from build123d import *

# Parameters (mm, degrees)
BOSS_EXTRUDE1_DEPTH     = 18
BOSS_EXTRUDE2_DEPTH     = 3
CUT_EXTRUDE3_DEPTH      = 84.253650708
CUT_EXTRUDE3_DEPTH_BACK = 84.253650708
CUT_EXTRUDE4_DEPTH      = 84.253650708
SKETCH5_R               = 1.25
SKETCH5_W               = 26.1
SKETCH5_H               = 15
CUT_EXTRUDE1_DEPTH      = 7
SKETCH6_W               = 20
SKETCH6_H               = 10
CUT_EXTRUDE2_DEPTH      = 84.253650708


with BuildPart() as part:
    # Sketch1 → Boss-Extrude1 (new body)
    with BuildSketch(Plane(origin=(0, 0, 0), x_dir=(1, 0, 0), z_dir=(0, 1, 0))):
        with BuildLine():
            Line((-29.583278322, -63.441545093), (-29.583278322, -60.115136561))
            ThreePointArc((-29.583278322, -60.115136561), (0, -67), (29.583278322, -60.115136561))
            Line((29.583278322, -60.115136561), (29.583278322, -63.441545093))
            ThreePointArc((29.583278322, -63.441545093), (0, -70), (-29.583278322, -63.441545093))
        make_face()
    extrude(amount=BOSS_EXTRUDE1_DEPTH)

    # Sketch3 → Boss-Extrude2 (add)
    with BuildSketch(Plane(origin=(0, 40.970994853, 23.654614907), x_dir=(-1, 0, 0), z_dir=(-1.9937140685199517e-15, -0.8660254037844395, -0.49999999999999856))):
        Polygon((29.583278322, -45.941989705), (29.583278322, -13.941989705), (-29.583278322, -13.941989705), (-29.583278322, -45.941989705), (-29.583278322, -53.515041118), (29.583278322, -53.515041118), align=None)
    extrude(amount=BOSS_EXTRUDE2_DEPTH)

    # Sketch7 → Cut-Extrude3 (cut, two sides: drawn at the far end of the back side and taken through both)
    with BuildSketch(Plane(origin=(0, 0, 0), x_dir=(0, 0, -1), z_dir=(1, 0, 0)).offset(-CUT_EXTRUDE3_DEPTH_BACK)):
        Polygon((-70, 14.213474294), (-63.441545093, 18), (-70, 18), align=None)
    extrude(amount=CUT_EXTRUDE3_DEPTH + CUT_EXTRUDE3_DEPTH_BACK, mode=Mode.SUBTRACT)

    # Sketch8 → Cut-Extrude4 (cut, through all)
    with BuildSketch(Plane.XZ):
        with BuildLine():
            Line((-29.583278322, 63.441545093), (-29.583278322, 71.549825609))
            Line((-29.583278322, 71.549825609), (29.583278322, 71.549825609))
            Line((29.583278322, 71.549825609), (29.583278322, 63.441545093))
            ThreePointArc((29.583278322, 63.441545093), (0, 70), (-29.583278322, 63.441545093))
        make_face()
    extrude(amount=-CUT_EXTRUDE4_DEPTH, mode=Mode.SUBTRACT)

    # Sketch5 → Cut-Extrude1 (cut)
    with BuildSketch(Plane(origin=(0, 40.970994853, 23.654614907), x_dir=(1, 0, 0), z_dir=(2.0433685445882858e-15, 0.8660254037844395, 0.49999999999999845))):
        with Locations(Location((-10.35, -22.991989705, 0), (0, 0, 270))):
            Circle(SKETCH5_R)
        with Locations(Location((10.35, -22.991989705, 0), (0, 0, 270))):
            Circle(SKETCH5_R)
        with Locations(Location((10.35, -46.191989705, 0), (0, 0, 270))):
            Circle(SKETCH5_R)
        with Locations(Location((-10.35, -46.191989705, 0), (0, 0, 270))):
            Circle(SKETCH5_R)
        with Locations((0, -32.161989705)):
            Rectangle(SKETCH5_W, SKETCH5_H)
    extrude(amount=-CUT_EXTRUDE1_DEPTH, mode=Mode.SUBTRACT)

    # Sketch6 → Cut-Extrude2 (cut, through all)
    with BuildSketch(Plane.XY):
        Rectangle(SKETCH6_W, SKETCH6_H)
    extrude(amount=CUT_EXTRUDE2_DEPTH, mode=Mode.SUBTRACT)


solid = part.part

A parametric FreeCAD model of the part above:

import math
import FreeCAD as App
import Part
import Sketcher
Q = App.Units.Quantity


def add_polygon(sketch, points):
    """Adds a closed chain of lines whose ends are joined by coincident constraints."""
    first, n = sketch.GeometryCount, len(points)
    for a, b in zip(points, points[1:] + points[:1]):
        sketch.addGeometry(Part.LineSegment(App.Vector(*a, 0), App.Vector(*b, 0)), False)
    for i in range(n):
        sketch.addConstraint(Sketcher.Constraint("Coincident", first + i, 2, first + (i + 1) % n, 1))

doc = App.newDocument("Part")
body = doc.addObject("PartDesign::Body", "Body")

# Sketch on XZ plane
sketch1 = doc.addObject("Sketcher::SketchObject", "Sketch")
body.addObject(sketch1)
sketch1.AttachmentSupport = (doc.XZ_Plane, [""])
sketch1.MapMode = "FlatFace"
sketch1.addGeometry([
    Part.LineSegment(App.Vector(-29.583278, 60.115137, 0), App.Vector(-29.583278, 63.441545, 0)),
    Part.ArcOfCircle(Part.Circle(App.Vector(0, 0, 0), App.Vector(0, 0, 1), 70), math.radians(65), math.radians(115)),
    Part.LineSegment(App.Vector(29.583278, 63.441545, 0), App.Vector(29.583278, 60.115137, 0)),
    Part.ArcOfCircle(Part.Circle(App.Vector(0, 0, 0), App.Vector(0, 0, 1), 67), math.radians(63.797726), math.radians(116.202274)),
], False)
sketch1.addConstraint([
    Sketcher.Constraint("Coincident", 0, 2, 1, 2),
    Sketcher.Constraint("Coincident", 1, 1, 2, 1),
    Sketcher.Constraint("Coincident", 2, 2, 3, 1),
    Sketcher.Constraint("Coincident", 3, 2, 0, 1),
    Sketcher.Constraint("Vertical", 0),
    Sketcher.Constraint("Vertical", 2),
    Sketcher.Constraint("Coincident", 1, 3, -1, 1),
    Sketcher.Constraint("Coincident", 3, 3, -1, 1),
    Sketcher.Constraint("Horizontal", 0, 2, 1, 1),
    Sketcher.Constraint("Radius", 1, Q("70 mm")),
    Sketcher.Constraint("Radius", 3, Q("67 mm")),
    Sketcher.Constraint("DistanceY", 0, 1, 0, 2, Q("3.326409 mm")),
])
pad1 = doc.addObject("PartDesign::Pad", "Pad")
body.addObject(pad1)
pad1.Profile = sketch1
pad1.Length = 18
pad1.Reversed = True

# Sketch on an angled plane
sketch2 = doc.addObject("Sketcher::SketchObject", "Sketch001")
body.addObject(sketch2)
sketch2.Placement = App.Placement(App.Vector(0, 40.970995, 23.654615), App.Rotation(App.Vector(-1, 0, 0), App.Vector(0, 0.5, -0.866025404), App.Vector(0, -0.866025404, -0.5), "ZXY"))
add_polygon(sketch2, [(29.583278, -13.94199), (-29.583278, -13.94199), (-29.583278, -53.515041), (29.583278, -53.515041)])  # lines 0-3
sketch2.addConstraint([
    Sketcher.Constraint("Horizontal", 0),
    Sketcher.Constraint("Vertical", 1),
    Sketcher.Constraint("Horizontal", 2),
    Sketcher.Constraint("Vertical", 3),
    Sketcher.Constraint("DistanceY", 1, 2, 1, 1, Q("39.573051 mm")),
    Sketcher.Constraint("DistanceX", 0, 2, 0, 1, Q("59.166557 mm")),
    Sketcher.Constraint("DistanceX", 0, 2, -1, 1, Q("29.583278 mm")),
    Sketcher.Constraint("DistanceY", 0, 2, -1, 1, Q("13.94199 mm")),
])
pad2 = doc.addObject("PartDesign::Pad", "Pad001")
body.addObject(pad2)
pad2.Profile = sketch2
pad2.Length = 3

# Sketch on YZ plane
sketch3 = doc.addObject("Sketcher::SketchObject", "Sketch002")
body.addObject(sketch3)
sketch3.AttachmentSupport = (doc.YZ_Plane, [""])
sketch3.MapMode = "FlatFace"
add_polygon(sketch3, [(14.213474, 70), (18, 63.441545), (18, 70)])  # lines 0-2
sketch3.addConstraint([
    Sketcher.Constraint("Vertical", 1),
    Sketcher.Constraint("Horizontal", 2),
    Sketcher.Constraint("Angle", 0, Q("-60 deg")),
    Sketcher.Constraint("DistanceX", -1, 1, 0, 2, Q("18 mm")),
    Sketcher.Constraint("DistanceY", -1, 1, 1, 2, Q("70 mm")),
    Sketcher.Constraint("Distance", 0, Q("7.573051 mm")),
])
pocket1 = doc.addObject("PartDesign::Pocket", "Pocket")
body.addObject(pocket1)
pocket1.Profile = sketch3
pocket1.Type = "ThroughAll"
pocket1.Midplane = True

# Sketch on XZ plane
sketch4 = doc.addObject("Sketcher::SketchObject", "Sketch003")
body.addObject(sketch4)
sketch4.AttachmentSupport = (doc.XZ_Plane, [""])
sketch4.MapMode = "FlatFace"
sketch4.addGeometry([
    Part.LineSegment(App.Vector(-29.583278, 71.549826, 0), App.Vector(-29.583278, 63.441545, 0)),
    Part.ArcOfCircle(Part.Circle(App.Vector(0, 0, 0), App.Vector(0, 0, 1), 70), math.radians(65), math.radians(115)),
    Part.LineSegment(App.Vector(29.583278, 63.441545, 0), App.Vector(29.583278, 71.549826, 0)),
    Part.LineSegment(App.Vector(29.583278, 71.549826, 0), App.Vector(-29.583278, 71.549826, 0)),
], False)
sketch4.addConstraint([
    Sketcher.Constraint("Coincident", 0, 2, 1, 2),
    Sketcher.Constraint("Coincident", 1, 1, 2, 1),
    Sketcher.Constraint("Coincident", 2, 2, 3, 1),
    Sketcher.Constraint("Coincident", 3, 2, 0, 1),
    Sketcher.Constraint("Vertical", 0),
    Sketcher.Constraint("Vertical", 2),
    Sketcher.Constraint("Horizontal", 3),
    Sketcher.Constraint("Coincident", 1, 3, -1, 1),
    Sketcher.Constraint("Horizontal", 0, 2, 1, 1),
    Sketcher.Constraint("Radius", 1, Q("70 mm")),
    Sketcher.Constraint("DistanceY", 0, 2, 0, 1, Q("8.108281 mm")),
    Sketcher.Constraint("DistanceX", 3, 2, 3, 1, Q("59.166557 mm")),
])
pocket2 = doc.addObject("PartDesign::Pocket", "Pocket001")
body.addObject(pocket2)
pocket2.Profile = sketch4
pocket2.Type = "ThroughAll"

# Sketch on an angled plane
sketch5 = doc.addObject("Sketcher::SketchObject", "Sketch004")
body.addObject(sketch5)
sketch5.Placement = App.Placement(App.Vector(0, 40.970995, 23.654615), App.Rotation(App.Vector(1, 0, 0), App.Vector(0, 0.5, -0.866025404), App.Vector(0, 0.866025404, 0.5), "ZXY"))
sketch5.addGeometry(Part.Circle(App.Vector(-10.35, -22.99199, 0), App.Vector(0, 0, 1), 1.25), False)  # 0
sketch5.addGeometry(Part.Circle(App.Vector(10.35, -22.99199, 0), App.Vector(0, 0, 1), 1.25), False)  # 1
sketch5.addGeometry(Part.Circle(App.Vector(10.35, -46.19199, 0), App.Vector(0, 0, 1), 1.25), False)  # 2
sketch5.addGeometry(Part.Circle(App.Vector(-10.35, -46.19199, 0), App.Vector(0, 0, 1), 1.25), False)  # 3
add_polygon(sketch5, [(-13.05, -24.66199), (-13.05, -39.66199), (13.05, -39.66199), (13.05, -24.66199)])  # lines 4-7
sketch5.addConstraint([
    Sketcher.Constraint("Vertical", 4),
    Sketcher.Constraint("Horizontal", 5),
    Sketcher.Constraint("Vertical", 6),
    Sketcher.Constraint("Horizontal", 7),
    Sketcher.Constraint("Equal", 0, 1),
    Sketcher.Constraint("Equal", 1, 2),
    Sketcher.Constraint("Equal", 2, 3),
    Sketcher.Constraint("Symmetric", 0, 3, 1, 3, -2),
    Sketcher.Constraint("Symmetric", 2, 3, 3, 3, -2),
    Sketcher.Constraint("Vertical", 1, 3, 2, 3),
    Sketcher.Constraint("Diameter", 0, Q("2.5 mm")),
    Sketcher.Constraint("DistanceY", 4, 2, 4, 1, Q("15 mm")),
    Sketcher.Constraint("DistanceX", 5, 1, 5, 2, Q("26.1 mm")),
    Sketcher.Constraint("DistanceX", 0, 3, 1, 3, Q("20.7 mm")),
    Sketcher.Constraint("DistanceY", 2, 3, 1, 3, Q("23.2 mm")),
    Sketcher.Constraint("DistanceX", 4, 2, 3, 3, Q("2.7 mm")),
    Sketcher.Constraint("DistanceY", 3, 3, 4, 2, Q("6.53 mm")),
    Sketcher.Constraint("DistanceY", 0, 3, -1, 1, Q("22.99199 mm")),
])
pocket3 = doc.addObject("PartDesign::Pocket", "Pocket002")
body.addObject(pocket3)
pocket3.Profile = sketch5
pocket3.Length = 7

# Sketch on XY plane
sketch6 = doc.addObject("Sketcher::SketchObject", "Sketch005")
body.addObject(sketch6)
sketch6.AttachmentSupport = (doc.XY_Plane, [""])
sketch6.MapMode = "FlatFace"
add_polygon(sketch6, [(-10, 5), (-10, -5), (10, -5), (10, 5)])  # lines 0-3
sketch6.addConstraint([
    Sketcher.Constraint("Vertical", 0),
    Sketcher.Constraint("Horizontal", 1),
    Sketcher.Constraint("Vertical", 2),
    Sketcher.Constraint("Horizontal", 3),
    Sketcher.Constraint("Symmetric", 0, 2, 2, 2, -1, 1),
    Sketcher.Constraint("DistanceX", 1, 1, 1, 2, Q("20 mm")),
    Sketcher.Constraint("DistanceY", 0, 2, 0, 1, Q("10 mm")),
])
pocket4 = doc.addObject("PartDesign::Pocket", "Pocket003")
body.addObject(pocket4)
pocket4.Profile = sketch6
pocket4.Type = "ThroughAll"
pocket4.Reversed = True

doc.recompute()
